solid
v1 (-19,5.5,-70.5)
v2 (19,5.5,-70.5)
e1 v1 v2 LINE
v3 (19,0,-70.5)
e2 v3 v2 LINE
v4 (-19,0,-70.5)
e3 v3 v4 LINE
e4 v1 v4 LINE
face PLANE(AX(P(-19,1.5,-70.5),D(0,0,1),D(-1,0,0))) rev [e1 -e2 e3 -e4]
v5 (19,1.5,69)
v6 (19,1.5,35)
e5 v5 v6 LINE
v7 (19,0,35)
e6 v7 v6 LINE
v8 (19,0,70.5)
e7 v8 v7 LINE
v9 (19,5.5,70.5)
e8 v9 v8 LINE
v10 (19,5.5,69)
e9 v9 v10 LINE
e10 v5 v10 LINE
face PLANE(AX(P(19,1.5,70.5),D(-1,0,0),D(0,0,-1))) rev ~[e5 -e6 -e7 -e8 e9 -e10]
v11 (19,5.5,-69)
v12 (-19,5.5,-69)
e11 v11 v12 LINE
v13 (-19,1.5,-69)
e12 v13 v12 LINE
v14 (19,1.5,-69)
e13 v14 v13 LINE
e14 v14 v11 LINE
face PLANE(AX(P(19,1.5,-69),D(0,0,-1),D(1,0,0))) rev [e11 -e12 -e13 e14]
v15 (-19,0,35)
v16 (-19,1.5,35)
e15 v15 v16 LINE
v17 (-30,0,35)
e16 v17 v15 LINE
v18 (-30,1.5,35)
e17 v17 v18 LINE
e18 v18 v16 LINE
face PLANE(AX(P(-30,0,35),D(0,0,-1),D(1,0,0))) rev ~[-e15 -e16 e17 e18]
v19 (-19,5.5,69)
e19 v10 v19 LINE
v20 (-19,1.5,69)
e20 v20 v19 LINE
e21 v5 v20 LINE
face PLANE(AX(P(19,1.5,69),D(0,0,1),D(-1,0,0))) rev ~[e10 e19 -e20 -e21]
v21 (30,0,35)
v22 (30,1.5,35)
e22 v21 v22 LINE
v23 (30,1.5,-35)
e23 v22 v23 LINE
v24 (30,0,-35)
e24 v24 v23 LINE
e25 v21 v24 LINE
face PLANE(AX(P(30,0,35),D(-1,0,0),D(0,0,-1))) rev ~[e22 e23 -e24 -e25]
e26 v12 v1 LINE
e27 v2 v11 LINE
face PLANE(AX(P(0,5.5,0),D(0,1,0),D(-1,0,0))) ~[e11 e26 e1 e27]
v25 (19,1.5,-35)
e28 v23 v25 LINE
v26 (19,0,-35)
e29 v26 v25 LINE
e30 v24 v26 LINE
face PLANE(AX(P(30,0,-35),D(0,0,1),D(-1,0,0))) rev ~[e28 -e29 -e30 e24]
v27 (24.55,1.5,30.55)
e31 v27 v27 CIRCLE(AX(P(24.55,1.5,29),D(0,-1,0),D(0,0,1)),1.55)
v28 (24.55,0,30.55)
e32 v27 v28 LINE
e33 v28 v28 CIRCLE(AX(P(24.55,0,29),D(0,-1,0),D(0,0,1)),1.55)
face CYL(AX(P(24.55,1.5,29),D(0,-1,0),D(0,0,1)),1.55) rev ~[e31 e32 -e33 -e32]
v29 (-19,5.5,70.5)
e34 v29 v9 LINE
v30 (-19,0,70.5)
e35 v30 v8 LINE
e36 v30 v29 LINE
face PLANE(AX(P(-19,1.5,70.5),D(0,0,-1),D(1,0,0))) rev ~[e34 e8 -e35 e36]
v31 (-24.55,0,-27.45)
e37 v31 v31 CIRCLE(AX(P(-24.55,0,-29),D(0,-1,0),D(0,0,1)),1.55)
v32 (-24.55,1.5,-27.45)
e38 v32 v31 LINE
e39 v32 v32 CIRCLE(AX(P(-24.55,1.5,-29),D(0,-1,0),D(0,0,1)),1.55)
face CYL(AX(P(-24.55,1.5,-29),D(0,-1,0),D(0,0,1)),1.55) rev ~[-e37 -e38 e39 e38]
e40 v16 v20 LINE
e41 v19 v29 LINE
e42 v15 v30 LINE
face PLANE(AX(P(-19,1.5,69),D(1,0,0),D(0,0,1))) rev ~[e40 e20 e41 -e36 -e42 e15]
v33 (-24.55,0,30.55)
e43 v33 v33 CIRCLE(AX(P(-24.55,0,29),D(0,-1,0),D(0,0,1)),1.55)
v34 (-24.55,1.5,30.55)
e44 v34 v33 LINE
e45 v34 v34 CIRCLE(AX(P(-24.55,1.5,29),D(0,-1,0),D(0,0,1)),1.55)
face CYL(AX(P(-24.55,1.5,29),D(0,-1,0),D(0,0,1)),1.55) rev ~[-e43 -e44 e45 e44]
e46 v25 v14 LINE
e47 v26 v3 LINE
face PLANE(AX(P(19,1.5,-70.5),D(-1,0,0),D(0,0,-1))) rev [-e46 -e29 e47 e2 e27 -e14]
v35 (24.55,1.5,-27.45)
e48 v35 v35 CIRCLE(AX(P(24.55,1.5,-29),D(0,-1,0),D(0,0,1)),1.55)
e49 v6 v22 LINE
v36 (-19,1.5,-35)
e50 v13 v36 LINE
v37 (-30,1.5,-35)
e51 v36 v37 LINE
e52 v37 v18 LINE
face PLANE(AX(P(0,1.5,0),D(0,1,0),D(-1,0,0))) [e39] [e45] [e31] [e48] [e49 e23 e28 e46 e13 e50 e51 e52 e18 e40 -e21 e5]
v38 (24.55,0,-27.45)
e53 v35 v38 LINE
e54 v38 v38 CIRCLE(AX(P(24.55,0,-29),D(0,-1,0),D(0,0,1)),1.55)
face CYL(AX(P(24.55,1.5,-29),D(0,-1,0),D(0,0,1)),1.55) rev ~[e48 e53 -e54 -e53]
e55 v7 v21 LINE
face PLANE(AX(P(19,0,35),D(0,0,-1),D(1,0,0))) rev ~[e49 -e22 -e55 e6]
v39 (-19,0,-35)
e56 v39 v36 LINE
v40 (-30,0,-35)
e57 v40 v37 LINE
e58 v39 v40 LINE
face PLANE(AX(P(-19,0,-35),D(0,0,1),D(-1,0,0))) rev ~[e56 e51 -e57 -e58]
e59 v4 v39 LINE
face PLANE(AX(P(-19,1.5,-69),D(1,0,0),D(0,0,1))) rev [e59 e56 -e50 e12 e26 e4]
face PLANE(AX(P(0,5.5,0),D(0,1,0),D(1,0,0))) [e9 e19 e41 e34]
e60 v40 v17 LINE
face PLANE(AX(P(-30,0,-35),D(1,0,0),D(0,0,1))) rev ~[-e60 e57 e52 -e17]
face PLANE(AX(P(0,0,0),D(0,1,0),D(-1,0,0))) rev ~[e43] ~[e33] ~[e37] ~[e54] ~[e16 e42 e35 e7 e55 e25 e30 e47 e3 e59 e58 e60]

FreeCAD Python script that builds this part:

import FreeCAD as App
import Part
import Sketcher


def add_polygon(sketch, points):
    """Adds a closed chain of lines whose ends are joined by coincident constraints."""
    first, n = sketch.GeometryCount, len(points)
    for a, b in zip(points, points[1:] + points[:1]):
        sketch.addGeometry(Part.LineSegment(App.Vector(*a, 0), App.Vector(*b, 0)), False)
    for i in range(n):
        sketch.addConstraint(Sketcher.Constraint("Coincident", first + i, 2, first + (i + 1) % n, 1))

doc = App.newDocument("Part")
body = doc.addObject("PartDesign::Body", "Body")

sketch1 = body.newObject("Sketcher::SketchObject", "Sketch")
sketch1.AttachmentSupport = (doc.getObject("XZ_Plane"), [""])
sketch1.MapMode = "FlatFace"
add_polygon(sketch1, [(19, -35), (19, -70), (-19, -70), (-19, -35), (-30, -35), (-30, 35), (-19, 35), (-19, 70), (19, 70), (19, 35), (30, 35), (30, -35)])
sketch1.addConstraint(Sketcher.Constraint("Vertical", 0))
sketch1.addConstraint(Sketcher.Constraint("Horizontal", 1))
sketch1.addConstraint(Sketcher.Constraint("Vertical", 2))
sketch1.addConstraint(Sketcher.Constraint("Horizontal", 3))
sketch1.addConstraint(Sketcher.Constraint("Vertical", 4))
sketch1.addConstraint(Sketcher.Constraint("Horizontal", 5))
sketch1.addConstraint(Sketcher.Constraint("Vertical", 6))
sketch1.addConstraint(Sketcher.Constraint("Horizontal", 7))
sketch1.addConstraint(Sketcher.Constraint("Vertical", 8))
sketch1.addConstraint(Sketcher.Constraint("Horizontal", 9))
sketch1.addConstraint(Sketcher.Constraint("Vertical", 10))
sketch1.addConstraint(Sketcher.Constraint("Horizontal", 11))
sketch1.addConstraint(Sketcher.Constraint("Symmetric", 0, 2, 6, 2, -1, 1))
sketch1.addConstraint(Sketcher.Constraint("Symmetric", 2, 2, 8, 2, -1, 1))
sketch1.addConstraint(Sketcher.Constraint("Symmetric", 4, 2, 10, 2, -1, 1))
sketch1.addConstraint(Sketcher.Constraint("Symmetric", 5, 2, 8, 2, -2))
sketch1.addConstraint(Sketcher.Constraint("DistanceX", 1, 2, 1, 1, 38.0))
sketch1.addConstraint(Sketcher.Constraint("DistanceY", 4, 1, 4, 2, 70.0))
sketch1.addConstraint(Sketcher.Constraint("DistanceY", 1, 2, 6, 2, 141.0))
sketch1.addConstraint(Sketcher.Constraint("DistanceX", 4, 2, 9, 2, 60.0))
pad1 = body.newObject("PartDesign::Pad", "Pad")
pad1.Profile = sketch1
pad1.Length = 1.5
pad1.Reversed = True

sketch2 = body.newObject("Sketcher::SketchObject", "Sketch001")
sketch2.AttachmentSupport = (doc.getObject("XZ_Plane"), [""])
sketch2.MapMode = "FlatFace"
sketch2.AttachmentOffset = App.Placement(App.Vector(0, 0, -1.5), App.Rotation())
sketch2.addGeometry(Part.Circle(App.Vector(-24.6, 29, 0), App.Vector(0, 0, 1), 1.6), False)
sketch2.addGeometry(Part.Circle(App.Vector(-24.6, -29, 0), App.Vector(0, 0, 1), 1.6), False)
sketch2.addGeometry(Part.Circle(App.Vector(24.6, -29, 0), App.Vector(0, 0, 1), 1.6), False)
sketch2.addGeometry(Part.Circle(App.Vector(24.6, 29, 0), App.Vector(0, 0, 1), 1.6), False)
sketch2.addConstraint(Sketcher.Constraint("Equal", 0, 1))
sketch2.addConstraint(Sketcher.Constraint("Equal", 1, 2))
sketch2.addConstraint(Sketcher.Constraint("Equal", 2, 3))
sketch2.addConstraint(Sketcher.Constraint("Symmetric", 0, 3, 2, 3, -1, 1))
sketch2.addConstraint(Sketcher.Constraint("Symmetric", 1, 3, 3, 3, -1, 1))
sketch2.addConstraint(Sketcher.Constraint("Symmetric", 1, 3, 2, 3, -2))
sketch2.addConstraint(Sketcher.Constraint("Diameter", 0, 3.1))
sketch2.addConstraint(Sketcher.Constraint("DistanceY", -1, 1, 0, 3, 29.0))
sketch2.addConstraint(Sketcher.Constraint("DistanceX", 1, 3, 2, 3, 49.1))
doc.recompute()
hole = body.newObject("PartDesign::Hole", "Hole")
hole.Profile = sketch2
hole.ThreadType = "None"
hole.Diameter = 3.1
hole.DepthType = "ThroughAll"
hole.Reversed = True

sketch3 = body.newObject("Sketcher::SketchObject", "Sketch002")
sketch3.AttachmentSupport = (doc.getObject("XZ_Plane"), [""])
sketch3.MapMode = "FlatFace"
sketch3.AttachmentOffset = App.Placement(App.Vector(0, 0, -1.5), App.Rotation())
add_polygon(sketch3, [(19, 69), (-19, 69), (-19, 70.5), (19, 70.5)])
sketch3.addConstraint(Sketcher.Constraint("Horizontal", 0))
sketch3.addConstraint(Sketcher.Constraint("Vertical", 1))
sketch3.addConstraint(Sketcher.Constraint("Horizontal", 2))
sketch3.addConstraint(Sketcher.Constraint("Vertical", 3))
sketch3.addConstraint(Sketcher.Constraint("DistanceY", 1, 1, 1, 2, 1.5))
sketch3.addConstraint(Sketcher.Constraint("DistanceX", 0, 2, 0, 1, 38.0))
sketch3.addConstraint(Sketcher.Constraint("DistanceX", 0, 2, -1, 1, 19.0))
sketch3.addConstraint(Sketcher.Constraint("DistanceY", -1, 1, 0, 2, 69.0))
pad2 = body.newObject("PartDesign::Pad", "Pad001")
pad2.Profile = sketch3
pad2.Length = 4
pad2.Reversed = True
doc.recompute()

mirrored = body.newObject("PartDesign::Mirrored", "Mirrored")
mirrored.Originals = [pad2]
mirrored.MirrorPlane = (doc.getObject("XY_Plane"), [""])
body.Tip = mirrored

doc.recompute()
